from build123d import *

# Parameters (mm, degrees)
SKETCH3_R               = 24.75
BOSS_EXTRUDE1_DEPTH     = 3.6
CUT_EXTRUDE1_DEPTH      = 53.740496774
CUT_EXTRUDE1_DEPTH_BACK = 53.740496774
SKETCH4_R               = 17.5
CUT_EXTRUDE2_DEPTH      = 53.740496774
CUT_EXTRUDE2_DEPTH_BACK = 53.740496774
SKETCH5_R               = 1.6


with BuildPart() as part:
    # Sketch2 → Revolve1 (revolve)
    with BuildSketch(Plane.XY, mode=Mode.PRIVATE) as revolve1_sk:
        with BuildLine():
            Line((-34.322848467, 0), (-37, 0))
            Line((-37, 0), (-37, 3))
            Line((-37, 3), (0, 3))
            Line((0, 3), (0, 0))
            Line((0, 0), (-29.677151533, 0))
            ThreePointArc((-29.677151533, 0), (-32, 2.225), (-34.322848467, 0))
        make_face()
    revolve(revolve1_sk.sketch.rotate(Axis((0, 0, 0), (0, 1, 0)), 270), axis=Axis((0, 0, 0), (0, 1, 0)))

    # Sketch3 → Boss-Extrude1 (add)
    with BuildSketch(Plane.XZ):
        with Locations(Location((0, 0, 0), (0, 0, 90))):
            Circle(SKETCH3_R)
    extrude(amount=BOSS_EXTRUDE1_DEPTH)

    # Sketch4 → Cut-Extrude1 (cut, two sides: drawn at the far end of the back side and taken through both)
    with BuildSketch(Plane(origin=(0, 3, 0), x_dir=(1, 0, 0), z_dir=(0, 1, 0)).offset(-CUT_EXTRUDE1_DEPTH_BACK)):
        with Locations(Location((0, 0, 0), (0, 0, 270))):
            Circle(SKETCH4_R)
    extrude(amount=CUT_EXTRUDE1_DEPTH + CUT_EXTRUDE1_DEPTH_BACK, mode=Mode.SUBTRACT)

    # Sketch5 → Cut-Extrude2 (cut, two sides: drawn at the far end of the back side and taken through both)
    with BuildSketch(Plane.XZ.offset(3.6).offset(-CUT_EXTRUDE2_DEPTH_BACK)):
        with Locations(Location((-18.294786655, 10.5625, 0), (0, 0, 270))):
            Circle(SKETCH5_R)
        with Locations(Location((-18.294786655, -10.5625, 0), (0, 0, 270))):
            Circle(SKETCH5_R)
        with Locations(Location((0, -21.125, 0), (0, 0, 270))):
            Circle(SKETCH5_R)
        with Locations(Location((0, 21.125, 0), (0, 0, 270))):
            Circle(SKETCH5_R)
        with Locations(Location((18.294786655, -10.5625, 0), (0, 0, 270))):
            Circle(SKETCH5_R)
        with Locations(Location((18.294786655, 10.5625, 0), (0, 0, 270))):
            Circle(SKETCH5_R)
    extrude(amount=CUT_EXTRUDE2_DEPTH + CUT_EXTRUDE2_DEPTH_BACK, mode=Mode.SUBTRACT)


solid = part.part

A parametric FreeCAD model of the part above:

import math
import FreeCAD as App
import Part
import Sketcher
from FreeCAD import Vector
Q = App.Units.Quantity

doc = App.newDocument("Part")
body = doc.addObject("PartDesign::Body", "Body")

# Sketch on XY plane
sketch1 = body.newObject("Sketcher::SketchObject", "Sketch")
sketch1.AttachmentSupport = (doc.getObject("XY_Plane"), [""])
sketch1.MapMode = "FlatFace"
sketch1.addGeometry([
    Part.LineSegment(Vector(-37, 0, 0), Vector(-34.3, 0, 0)),  # 0
    Part.ArcOfCircle(Part.Circle(Vector(-32, -0.1, 0), Vector(0, 0, 1), 2.3), math.radians(2), math.radians(178)),  # 1
    Part.LineSegment(Vector(-29.7, 0, 0), Vector(0, 0, 0)),  # 2
    Part.LineSegment(Vector(0, 0, 0), Vector(0, 3, 0)),  # 3
    Part.LineSegment(Vector(0, 3, 0), Vector(-37, 3, 0)),  # 4
    Part.LineSegment(Vector(-37, 3, 0), Vector(-37, 0, 0)),  # 5
], False)
sketch1.addConstraint([
    Sketcher.Constraint("Coincident", 0, 2, 1, 2),
    Sketcher.Constraint("Coincident", 1, 1, 2, 1),
    Sketcher.Constraint("Coincident", 2, 2, 3, 1),
    Sketcher.Constraint("Coincident", 3, 2, 4, 1),
    Sketcher.Constraint("Coincident", 4, 2, 5, 1),
    Sketcher.Constraint("Coincident", 5, 2, 0, 1),
    Sketcher.Constraint("Horizontal", 0),
    Sketcher.Constraint("Horizontal", 2),
    Sketcher.Constraint("Vertical", 3),
    Sketcher.Constraint("Horizontal", 4),
    Sketcher.Constraint("Vertical", 5),
    Sketcher.Constraint("Coincident", 2, 2, -1, 1),
    Sketcher.Constraint("PointOnObject", 0, 2, -1),
    Sketcher.Constraint("DistanceX", 4, 2, 4, 1, Q("37 mm")),
    Sketcher.Constraint("DistanceY", 3, 1, 3, 2, Q("3 mm")),
    Sketcher.Constraint("DistanceX", 1, 3, -1, 1, Q("32 mm")),
    Sketcher.Constraint("Radius", 1, Q("2.325 mm")),
    Sketcher.Constraint("DistanceY", 1, 3, -1, 1, Q("0.1 mm")),
])
revolution = body.newObject("PartDesign::Revolution", "Revolution")
revolution.Profile = sketch1
revolution.ReferenceAxis = (sketch1, ["V_Axis"])
revolution.Angle = 360

# Sketch on XZ plane
sketch2 = body.newObject("Sketcher::SketchObject", "Sketch001")
sketch2.AttachmentSupport = (doc.getObject("XZ_Plane"), [""])
sketch2.MapMode = "FlatFace"
sketch2.addGeometry(Part.Circle(Vector(0, 0, 0), Vector(0, 0, 1), 25), False)
sketch2.addConstraint([
    Sketcher.Constraint("Coincident", 0, 3, -1, 1),
    Sketcher.Constraint("Diameter", 0, Q("49.5 mm")),
])
pad1 = body.newObject("PartDesign::Pad", "Pad")
pad1.Profile = sketch2
pad1.Length = 3.6

# Sketch on XZ plane
sketch3 = body.newObject("Sketcher::SketchObject", "Sketch002")
sketch3.AttachmentSupport = (doc.getObject("XZ_Plane"), [""])
sketch3.MapMode = "FlatFace"
sketch3.AttachmentOffset = App.Placement(Vector(0, 0, -3), App.Rotation())
sketch3.addGeometry(Part.Circle(Vector(0, 0, 0), Vector(0, 0, 1), 18), False)
sketch3.addConstraint([
    Sketcher.Constraint("Coincident", 0, 3, -1, 1),
    Sketcher.Constraint("Diameter", 0, Q("35 mm")),
])
pocket1 = body.newObject("PartDesign::Pocket", "Pocket")
pocket1.Profile = sketch3
pocket1.Type = "ThroughAll"
pocket1.Midplane = True

# Sketch on XZ plane
sketch4 = body.newObject("Sketcher::SketchObject", "Sketch003")
sketch4.AttachmentSupport = (doc.getObject("XZ_Plane"), [""])
sketch4.MapMode = "FlatFace"
sketch4.AttachmentOffset = App.Placement(Vector(0, 0, 3.6), App.Rotation())
sketch4.addGeometry([
    Part.Circle(Vector(-18.3, 10.6, 0), Vector(0, 0, 1), 1.6),  # 0
    Part.Circle(Vector(-18.3, -10.6, 0), Vector(0, 0, 1), 1.6),  # 1
    Part.Circle(Vector(0, -21.1, 0), Vector(0, 0, 1), 1.6),  # 2
    Part.Circle(Vector(0, 21.1, 0), Vector(0, 0, 1), 1.6),  # 3
    Part.Circle(Vector(18.3, -10.6, 0), Vector(0, 0, 1), 1.6),  # 4
    Part.Circle(Vector(18.3, 10.6, 0), Vector(0, 0, 1), 1.6),  # 5
], False)
sketch4.addConstraint([
    Sketcher.Constraint("Equal", 0, 1),
    Sketcher.Constraint("Equal", 1, 2),
    Sketcher.Constraint("Equal", 2, 3),
    Sketcher.Constraint("Equal", 3, 4),
    Sketcher.Constraint("Equal", 4, 5),
    Sketcher.Constraint("Symmetric", 2, 3, 3, 3, -1, 1),
    Sketcher.Constraint("Symmetric", 0, 3, 4, 3, -1, 1),
    Sketcher.Constraint("Symmetric", 1, 3, 5, 3, -1, 1),
    Sketcher.Constraint("Symmetric", 1, 3, 4, 3, -2),
    Sketcher.Constraint("PointOnObject", 2, 3, -2),
    Sketcher.Constraint("Diameter", 0, Q("3.2 mm")),
    Sketcher.Constraint("DistanceY", 2, 3, 3, 3, Q("42.25 mm")),
    Sketcher.Constraint("DistanceY", 1, 3, 0, 3, Q("21.125 mm")),
    Sketcher.Constraint("DistanceX", 0, 3, -1, 1, Q("18.294787 mm")),
])
pocket2 = body.newObject("PartDesign::Pocket", "Pocket001")
pocket2.Profile = sketch4
pocket2.Type = "ThroughAll"
pocket2.Midplane = True

doc.recompute()
